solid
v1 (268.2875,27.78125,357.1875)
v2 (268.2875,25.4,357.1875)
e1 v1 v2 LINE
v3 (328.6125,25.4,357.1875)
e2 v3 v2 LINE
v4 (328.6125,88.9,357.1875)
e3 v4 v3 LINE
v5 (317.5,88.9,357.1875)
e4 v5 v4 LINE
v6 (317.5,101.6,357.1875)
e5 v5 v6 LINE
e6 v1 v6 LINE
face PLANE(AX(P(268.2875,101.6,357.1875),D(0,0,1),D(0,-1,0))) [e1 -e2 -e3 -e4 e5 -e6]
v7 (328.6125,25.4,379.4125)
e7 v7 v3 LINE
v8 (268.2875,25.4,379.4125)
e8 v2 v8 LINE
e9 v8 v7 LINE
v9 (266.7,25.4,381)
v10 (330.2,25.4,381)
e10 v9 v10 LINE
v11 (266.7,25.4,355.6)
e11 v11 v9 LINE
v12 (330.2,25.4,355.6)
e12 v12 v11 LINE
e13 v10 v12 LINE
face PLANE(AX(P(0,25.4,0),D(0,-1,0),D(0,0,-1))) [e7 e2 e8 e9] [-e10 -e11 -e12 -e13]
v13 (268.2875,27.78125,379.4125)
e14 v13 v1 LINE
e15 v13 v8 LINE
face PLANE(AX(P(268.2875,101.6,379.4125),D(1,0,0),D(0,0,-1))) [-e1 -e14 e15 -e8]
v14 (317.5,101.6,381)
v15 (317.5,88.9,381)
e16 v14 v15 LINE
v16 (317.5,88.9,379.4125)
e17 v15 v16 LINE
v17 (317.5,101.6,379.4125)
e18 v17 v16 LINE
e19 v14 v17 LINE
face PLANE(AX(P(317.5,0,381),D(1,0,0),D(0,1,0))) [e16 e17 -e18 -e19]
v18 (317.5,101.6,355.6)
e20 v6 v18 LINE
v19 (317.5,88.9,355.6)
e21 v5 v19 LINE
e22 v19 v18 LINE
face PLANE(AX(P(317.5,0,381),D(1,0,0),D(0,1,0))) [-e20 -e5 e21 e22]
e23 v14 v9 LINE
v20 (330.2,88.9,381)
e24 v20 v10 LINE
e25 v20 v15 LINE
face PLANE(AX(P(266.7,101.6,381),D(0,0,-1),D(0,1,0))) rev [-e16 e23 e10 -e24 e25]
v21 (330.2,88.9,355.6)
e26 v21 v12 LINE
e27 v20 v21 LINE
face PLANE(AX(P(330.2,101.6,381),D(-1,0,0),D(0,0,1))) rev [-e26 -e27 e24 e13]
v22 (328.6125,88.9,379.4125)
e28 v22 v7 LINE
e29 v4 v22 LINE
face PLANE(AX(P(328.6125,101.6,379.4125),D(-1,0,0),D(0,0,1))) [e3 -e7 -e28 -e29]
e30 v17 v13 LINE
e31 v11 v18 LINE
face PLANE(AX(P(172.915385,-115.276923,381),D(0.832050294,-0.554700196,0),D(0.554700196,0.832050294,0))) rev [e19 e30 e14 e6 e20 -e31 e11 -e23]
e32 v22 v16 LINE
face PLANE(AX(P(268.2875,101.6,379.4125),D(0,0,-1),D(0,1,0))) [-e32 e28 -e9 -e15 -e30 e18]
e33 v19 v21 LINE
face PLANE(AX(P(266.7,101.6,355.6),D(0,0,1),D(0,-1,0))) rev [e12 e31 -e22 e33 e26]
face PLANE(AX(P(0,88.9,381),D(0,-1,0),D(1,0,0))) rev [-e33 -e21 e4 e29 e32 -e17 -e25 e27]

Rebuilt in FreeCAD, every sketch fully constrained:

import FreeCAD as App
import Part
import Sketcher

V = App.Vector
Q = App.Units.Quantity


def add_polygon(sketch, points):
    """Adds a closed chain of lines whose ends are joined by coincident constraints."""
    first, n = sketch.GeometryCount, len(points)
    for a, b in zip(points, points[1:] + points[:1]):
        sketch.addGeometry(Part.LineSegment(App.Vector(*a, 0), App.Vector(*b, 0)), False)
    for i in range(n):
        sketch.addConstraint(Sketcher.Constraint("Coincident", first + i, 2, first + (i + 1) % n, 1))

doc = App.newDocument("Part")
body = doc.addObject("PartDesign::Body", "Body")

# Sketch on XZ plane
sketch1 = body.newObject("Sketcher::SketchObject", "Sketch")
sketch1.AttachmentSupport = (doc.getObject("XZ_Plane"), [""])
sketch1.MapMode = "FlatFace"
sketch1.AttachmentOffset = App.Placement(V(0, 0, -1 * 25.4), App.Rotation())
add_polygon(sketch1, [(266.7, 355.6), (266.7, 381), (330.2, 381), (330.2, 355.6)])  # lines 0-3
add_polygon(sketch1, [(328.6125, 379.4125), (268.2875, 379.4125), (268.2875, 357.1875), (328.6125, 357.1875)])  # lines 4-7
sketch1.addConstraint(Sketcher.Constraint("Vertical", 0))
sketch1.addConstraint(Sketcher.Constraint("Horizontal", 1))
sketch1.addConstraint(Sketcher.Constraint("Vertical", 2))
sketch1.addConstraint(Sketcher.Constraint("Horizontal", 3))
sketch1.addConstraint(Sketcher.Constraint("Horizontal", 4))
sketch1.addConstraint(Sketcher.Constraint("Vertical", 5))
sketch1.addConstraint(Sketcher.Constraint("Horizontal", 6))
sketch1.addConstraint(Sketcher.Constraint("Vertical", 7))
sketch1.addConstraint(Sketcher.Constraint("DistanceY", 0, 1, 0, 2, Q("1 in")))
sketch1.addConstraint(Sketcher.Constraint("DistanceX", 1, 1, 1, 2, Q("2.5 in")))
sketch1.addConstraint(Sketcher.Constraint("DistanceY", -1, 1, 0, 2, Q("15 in")))
sketch1.addConstraint(Sketcher.Constraint("DistanceX", -1, 1, 1, 2, Q("13 in")))
sketch1.addConstraint(Sketcher.Constraint("DistanceX", 4, 2, 4, 1, Q("2.375 in")))
sketch1.addConstraint(Sketcher.Constraint("DistanceY", 5, 2, 5, 1, Q("0.875 in")))
sketch1.addConstraint(Sketcher.Constraint("DistanceX", -1, 1, 4, 2, Q("10.5625 in")))
sketch1.addConstraint(Sketcher.Constraint("DistanceY", -1, 1, 4, 2, Q("14.9375 in")))
pad1 = body.newObject("PartDesign::Pad", "Pad")
pad1.Profile = sketch1
pad1.Length = Q("3 in")
pad1.Reversed = True

# Sketch on XY plane
sketch2 = body.newObject("Sketcher::SketchObject", "Sketch001")
sketch2.AttachmentSupport = (doc.getObject("XY_Plane"), [""])
sketch2.MapMode = "FlatFace"
add_polygon(sketch2, [(317.5, 101.6), (266.7, 101.6), (266.7, 25.4)])  # lines 0-2
add_polygon(sketch2, [(317.5, 101.6), (317.5, 88.9), (330.2, 88.9), (330.2, 101.6)])  # lines 3-6
sketch2.addConstraint(Sketcher.Constraint("Horizontal", 0))
sketch2.addConstraint(Sketcher.Constraint("Vertical", 1))
sketch2.addConstraint(Sketcher.Constraint("Vertical", 3))
sketch2.addConstraint(Sketcher.Constraint("Horizontal", 4))
sketch2.addConstraint(Sketcher.Constraint("Vertical", 5))
sketch2.addConstraint(Sketcher.Constraint("Horizontal", 6))
sketch2.addConstraint(Sketcher.Constraint("Coincident", 6, 2, 2, 2))
sketch2.addConstraint(Sketcher.Constraint("Equal", 6, 3))
sketch2.addConstraint(Sketcher.Constraint("DistanceX", 0, 2, 0, 1, Q("2 in")))
sketch2.addConstraint(Sketcher.Constraint("DistanceY", 1, 2, 1, 1, Q("3 in")))
sketch2.addConstraint(Sketcher.Constraint("DistanceX", 4, 1, 4, 2, Q("0.5 in")))
sketch2.addConstraint(Sketcher.Constraint("DistanceY", -1, 1, 0, 2, Q("4 in")))
sketch2.addConstraint(Sketcher.Constraint("DistanceX", -1, 1, 4, 2, Q("13 in")))
pocket1 = body.newObject("PartDesign::Pocket", "Pocket")
pocket1.Profile = sketch2
pocket1.Type = "ThroughAll"
pocket1.Reversed = True

doc.recompute()
